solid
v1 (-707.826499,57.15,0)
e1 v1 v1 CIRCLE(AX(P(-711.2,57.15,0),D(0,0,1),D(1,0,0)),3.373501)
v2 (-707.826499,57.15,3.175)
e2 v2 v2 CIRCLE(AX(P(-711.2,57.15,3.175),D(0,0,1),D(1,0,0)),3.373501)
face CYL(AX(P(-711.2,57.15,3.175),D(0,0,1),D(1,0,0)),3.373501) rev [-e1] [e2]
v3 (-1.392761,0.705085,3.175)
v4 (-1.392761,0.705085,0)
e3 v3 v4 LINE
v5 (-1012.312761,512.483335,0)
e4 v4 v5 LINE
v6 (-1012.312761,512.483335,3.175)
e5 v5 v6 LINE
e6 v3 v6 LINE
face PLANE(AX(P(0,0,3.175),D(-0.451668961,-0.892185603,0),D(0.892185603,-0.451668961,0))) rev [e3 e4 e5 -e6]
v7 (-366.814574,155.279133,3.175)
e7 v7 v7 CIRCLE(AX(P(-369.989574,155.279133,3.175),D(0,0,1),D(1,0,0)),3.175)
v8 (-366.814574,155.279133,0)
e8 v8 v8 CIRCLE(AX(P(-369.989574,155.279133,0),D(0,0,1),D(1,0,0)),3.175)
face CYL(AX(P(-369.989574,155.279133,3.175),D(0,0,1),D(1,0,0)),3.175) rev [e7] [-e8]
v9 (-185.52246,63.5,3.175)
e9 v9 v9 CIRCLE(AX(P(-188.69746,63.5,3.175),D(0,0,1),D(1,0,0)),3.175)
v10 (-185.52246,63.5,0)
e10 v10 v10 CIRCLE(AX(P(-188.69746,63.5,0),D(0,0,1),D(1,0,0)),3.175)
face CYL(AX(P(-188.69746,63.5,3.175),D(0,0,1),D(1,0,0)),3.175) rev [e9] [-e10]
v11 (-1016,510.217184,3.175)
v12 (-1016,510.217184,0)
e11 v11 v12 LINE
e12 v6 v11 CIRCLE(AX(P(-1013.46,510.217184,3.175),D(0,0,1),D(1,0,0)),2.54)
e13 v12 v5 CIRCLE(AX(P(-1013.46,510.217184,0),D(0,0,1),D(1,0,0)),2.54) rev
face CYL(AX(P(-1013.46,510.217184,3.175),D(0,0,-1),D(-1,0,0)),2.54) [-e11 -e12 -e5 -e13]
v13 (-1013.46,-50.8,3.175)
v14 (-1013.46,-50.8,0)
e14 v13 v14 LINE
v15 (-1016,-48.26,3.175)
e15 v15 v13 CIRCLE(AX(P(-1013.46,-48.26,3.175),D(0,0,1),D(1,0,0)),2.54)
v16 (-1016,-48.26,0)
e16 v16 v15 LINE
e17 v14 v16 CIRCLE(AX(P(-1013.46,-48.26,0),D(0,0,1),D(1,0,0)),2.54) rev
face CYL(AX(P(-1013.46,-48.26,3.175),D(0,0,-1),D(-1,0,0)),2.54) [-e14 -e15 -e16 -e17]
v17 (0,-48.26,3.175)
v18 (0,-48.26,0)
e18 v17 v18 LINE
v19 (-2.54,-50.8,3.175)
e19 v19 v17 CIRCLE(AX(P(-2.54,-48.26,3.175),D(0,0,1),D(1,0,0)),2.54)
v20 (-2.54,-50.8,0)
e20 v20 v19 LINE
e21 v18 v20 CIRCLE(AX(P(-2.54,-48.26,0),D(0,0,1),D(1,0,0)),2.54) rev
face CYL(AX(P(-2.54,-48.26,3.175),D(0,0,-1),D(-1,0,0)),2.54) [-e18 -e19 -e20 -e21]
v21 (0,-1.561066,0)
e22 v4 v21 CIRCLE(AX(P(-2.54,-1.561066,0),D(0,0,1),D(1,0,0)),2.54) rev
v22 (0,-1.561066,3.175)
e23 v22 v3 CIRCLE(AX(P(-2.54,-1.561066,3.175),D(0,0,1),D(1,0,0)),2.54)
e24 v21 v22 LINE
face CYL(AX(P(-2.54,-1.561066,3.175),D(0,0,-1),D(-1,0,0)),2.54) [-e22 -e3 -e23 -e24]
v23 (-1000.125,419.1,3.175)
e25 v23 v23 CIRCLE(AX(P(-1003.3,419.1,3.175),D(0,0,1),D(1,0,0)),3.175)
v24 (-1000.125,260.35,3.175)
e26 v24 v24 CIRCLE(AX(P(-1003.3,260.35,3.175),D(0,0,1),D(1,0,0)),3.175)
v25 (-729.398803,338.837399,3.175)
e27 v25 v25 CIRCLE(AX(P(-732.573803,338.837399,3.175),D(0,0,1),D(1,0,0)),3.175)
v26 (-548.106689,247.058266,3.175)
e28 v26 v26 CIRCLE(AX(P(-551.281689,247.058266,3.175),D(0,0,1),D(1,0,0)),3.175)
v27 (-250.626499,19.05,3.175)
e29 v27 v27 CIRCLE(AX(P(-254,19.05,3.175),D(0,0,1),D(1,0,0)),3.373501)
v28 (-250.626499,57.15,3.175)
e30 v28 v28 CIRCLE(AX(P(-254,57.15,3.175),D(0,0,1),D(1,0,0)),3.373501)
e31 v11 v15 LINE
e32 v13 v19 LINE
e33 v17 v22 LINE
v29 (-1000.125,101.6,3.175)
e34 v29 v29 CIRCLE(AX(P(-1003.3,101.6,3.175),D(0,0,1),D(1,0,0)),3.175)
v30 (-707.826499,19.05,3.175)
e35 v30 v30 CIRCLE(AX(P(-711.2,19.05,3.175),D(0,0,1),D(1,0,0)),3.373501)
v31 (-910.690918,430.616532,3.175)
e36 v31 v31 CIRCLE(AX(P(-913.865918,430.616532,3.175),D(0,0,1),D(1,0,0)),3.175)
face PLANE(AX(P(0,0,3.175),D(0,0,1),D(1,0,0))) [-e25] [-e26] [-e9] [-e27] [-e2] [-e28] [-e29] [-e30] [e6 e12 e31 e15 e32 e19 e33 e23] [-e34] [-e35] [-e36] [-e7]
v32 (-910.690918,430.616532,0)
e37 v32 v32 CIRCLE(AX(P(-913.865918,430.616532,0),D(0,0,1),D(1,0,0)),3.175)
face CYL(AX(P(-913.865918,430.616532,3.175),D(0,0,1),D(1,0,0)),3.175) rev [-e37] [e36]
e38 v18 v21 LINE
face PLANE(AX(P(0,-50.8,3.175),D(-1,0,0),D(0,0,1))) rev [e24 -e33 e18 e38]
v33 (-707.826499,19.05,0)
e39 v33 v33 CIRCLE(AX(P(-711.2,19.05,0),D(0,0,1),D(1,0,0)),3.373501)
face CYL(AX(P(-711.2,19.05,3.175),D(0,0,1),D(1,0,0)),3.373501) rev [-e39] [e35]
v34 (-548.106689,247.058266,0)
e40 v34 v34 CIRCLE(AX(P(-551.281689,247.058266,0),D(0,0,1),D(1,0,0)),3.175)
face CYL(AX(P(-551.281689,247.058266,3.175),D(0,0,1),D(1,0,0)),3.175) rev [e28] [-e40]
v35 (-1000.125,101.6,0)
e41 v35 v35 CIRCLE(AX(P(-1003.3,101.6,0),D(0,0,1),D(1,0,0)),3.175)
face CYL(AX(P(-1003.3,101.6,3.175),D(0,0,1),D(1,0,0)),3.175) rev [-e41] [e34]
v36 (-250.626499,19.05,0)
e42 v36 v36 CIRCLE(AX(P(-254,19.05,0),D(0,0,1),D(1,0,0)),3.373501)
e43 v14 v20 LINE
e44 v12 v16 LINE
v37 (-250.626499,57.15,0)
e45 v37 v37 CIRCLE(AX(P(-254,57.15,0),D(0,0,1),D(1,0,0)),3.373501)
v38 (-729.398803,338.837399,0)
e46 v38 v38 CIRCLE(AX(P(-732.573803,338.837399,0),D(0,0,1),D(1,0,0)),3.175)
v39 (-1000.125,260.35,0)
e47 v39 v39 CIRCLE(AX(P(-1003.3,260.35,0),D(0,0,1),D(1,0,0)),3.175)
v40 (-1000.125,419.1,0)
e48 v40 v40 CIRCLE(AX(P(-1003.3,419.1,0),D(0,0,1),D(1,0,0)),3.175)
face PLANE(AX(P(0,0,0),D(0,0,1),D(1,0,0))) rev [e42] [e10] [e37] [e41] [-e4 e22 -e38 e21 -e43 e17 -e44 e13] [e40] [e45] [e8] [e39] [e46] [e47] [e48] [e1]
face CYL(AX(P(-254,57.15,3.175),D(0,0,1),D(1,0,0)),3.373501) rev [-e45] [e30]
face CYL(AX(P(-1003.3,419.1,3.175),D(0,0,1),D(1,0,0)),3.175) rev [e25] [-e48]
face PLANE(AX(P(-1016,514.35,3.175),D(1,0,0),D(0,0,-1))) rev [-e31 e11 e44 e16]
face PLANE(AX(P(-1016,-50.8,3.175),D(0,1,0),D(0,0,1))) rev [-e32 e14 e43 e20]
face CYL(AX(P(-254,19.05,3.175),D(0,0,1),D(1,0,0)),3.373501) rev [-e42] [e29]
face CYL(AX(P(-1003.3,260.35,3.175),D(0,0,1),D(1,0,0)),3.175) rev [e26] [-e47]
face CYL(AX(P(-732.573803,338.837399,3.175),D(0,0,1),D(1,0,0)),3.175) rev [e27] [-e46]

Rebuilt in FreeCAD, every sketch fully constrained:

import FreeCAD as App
import Part
import Sketcher

V = App.Vector
Q = App.Units.Quantity


def edges_at(feature, points):
    """Names of the edges that pass closest to the given points."""
    edges = feature.Shape.Edges
    near = lambda p: min(range(len(edges)), key=lambda i: edges[i].distToShape(Part.Vertex(*p))[0])
    return sorted({f"Edge{near(p) + 1}" for p in points})

doc = App.newDocument("Part")
body = doc.addObject("PartDesign::Body", "Body")

# Sketch on XY plane
sketch1 = doc.addObject("Sketcher::SketchObject", "Sketch")
body.addObject(sketch1)
sketch1.AttachmentSupport = (doc.XY_Plane, [""])
sketch1.MapMode = "FlatFace"
sketch1.addGeometry([
    Part.LineSegment(V(-1016, 514.35, 0), V(-1016, -50.8, 0)),
    Part.LineSegment(V(-1016, -50.8, 0), V(0, -50.8, 0)),
    Part.LineSegment(V(0, -50.8, 0), V(0, 0, 0)),
    Part.LineSegment(V(0, 0, 0), V(-1016, 514.35, 0)),
], False)
sketch1.addConstraint([
    Sketcher.Constraint("Coincident", 0, 2, 1, 1),
    Sketcher.Constraint("Coincident", 1, 2, 2, 1),
    Sketcher.Constraint("Coincident", 2, 2, 3, 1),
    Sketcher.Constraint("Coincident", 3, 2, 0, 1),
    Sketcher.Constraint("Vertical", 0),
    Sketcher.Constraint("Horizontal", 1),
    Sketcher.Constraint("Vertical", 2),
    Sketcher.Constraint("Coincident", 2, 2, -1, 1),
    Sketcher.Constraint("DistanceX", 1, 1, 1, 2, Q("40 in")),
    Sketcher.Constraint("DistanceY", 2, 1, 2, 2, Q("2 in")),
    Sketcher.Constraint("DistanceY", 0, 2, 0, 1, Q("22.25 in")),
])
pad1 = doc.addObject("PartDesign::Pad", "Pad")
body.addObject(pad1)
pad1.Profile = sketch1
pad1.Length = Q("0.125 in")

# Sketch on XY plane
sketch2 = doc.addObject("Sketcher::SketchObject", "Sketch001")
body.addObject(sketch2)
sketch2.AttachmentSupport = (doc.XY_Plane, [""])
sketch2.MapMode = "FlatFace"
sketch2.AttachmentOffset = App.Placement(V(0, 0, 0.125 * 25.4), App.Rotation())
sketch2.addGeometry([
    Part.Circle(V(-1003.3, 419.1, 0), V(0, 0, 1), 3.175),
    Part.Circle(V(-1003.3, 260.35, 0), V(0, 0, 1), 3.175),
    Part.Circle(V(-1003.3, 101.6, 0), V(0, 0, 1), 3.175),
], False)
sketch2.addConstraint([
    Sketcher.Constraint("Equal", 0, 1),
    Sketcher.Constraint("Equal", 1, 2),
    Sketcher.Constraint("Vertical", 0, 3, 1, 3),
    Sketcher.Constraint("Vertical", 1, 3, 2, 3),
    Sketcher.Constraint("Diameter", 0, Q("0.25 in")),
    Sketcher.Constraint("DistanceY", -1, 1, 2, 3, Q("4 in")),
    Sketcher.Constraint("DistanceX", 0, 3, -1, 1, Q("39.5 in")),
    Sketcher.Constraint("DistanceY", -1, 1, 0, 3, Q("16.5 in")),
    Sketcher.Constraint("DistanceY", -1, 1, 1, 3, Q("10.25 in")),
])
doc.recompute()
hole = doc.addObject("PartDesign::Hole", "Hole")
body.addObject(hole)
hole.Profile = sketch2
hole.ThreadType = "None"
hole.Diameter = Q("0.25 in")
hole.DepthType = "ThroughAll"

# Sketch on XY plane
sketch3 = doc.addObject("Sketcher::SketchObject", "Sketch002")
body.addObject(sketch3)
sketch3.AttachmentSupport = (doc.XY_Plane, [""])
sketch3.MapMode = "FlatFace"
sketch3.AttachmentOffset = App.Placement(V(0, 0, 0.125 * 25.4), App.Rotation())
sketch3.addGeometry([
    Part.Circle(V(-254, 19.05, 0), V(0, 0, 1), 3.373501),
    Part.Circle(V(-711.2, 57.15, 0), V(0, 0, 1), 3.373501),
    Part.Circle(V(-711.2, 19.05, 0), V(0, 0, 1), 3.373501),
    Part.Circle(V(-254, 57.15, 0), V(0, 0, 1), 3.373501),
], False)
sketch3.addConstraint([
    Sketcher.Constraint("Equal", 0, 1),
    Sketcher.Constraint("Equal", 1, 2),
    Sketcher.Constraint("Equal", 2, 3),
    Sketcher.Constraint("Horizontal", 0, 3, 2, 3),
    Sketcher.Constraint("Horizontal", 1, 3, 3, 3),
    Sketcher.Constraint("Vertical", 1, 3, 2, 3),
    Sketcher.Constraint("Vertical", 0, 3, 3, 3),
    Sketcher.Constraint("DistanceX", 0, 3, -1, 1, Q("10 in")),
    Sketcher.Constraint("DistanceX", 1, 3, -1, 1, Q("28 in")),
    Sketcher.Constraint("DistanceY", 0, 3, 1, 3, Q("1.5 in")),
    Sketcher.Constraint("DistanceY", -1, 1, 0, 3, Q("0.75 in")),
    Sketcher.Constraint("Diameter", 0, Q("6.747002 mm")),
])
doc.recompute()
hole2 = doc.addObject("PartDesign::Hole", "Hole001")
body.addObject(hole2)
hole2.Profile = sketch3
hole2.ThreadType = "None"
hole2.Diameter = 6.747002
hole2.DepthType = "ThroughAll"
doc.recompute()

fillet = doc.addObject("PartDesign::Fillet", "Fillet")
body.addObject(fillet)
fillet.Base = (hole2, edges_at(hole2, [
    (0, 0, 1.587),
    (0, -50.8, 1.587),
    (-1016, -50.8, 1.587),
    (-1016, 514.35, 1.587),
]))
fillet.Radius = Q("0.1 in")

# Sketch on XY plane
sketch4 = doc.addObject("Sketcher::SketchObject", "Sketch003")
body.addObject(sketch4)
sketch4.AttachmentSupport = (doc.XY_Plane, [""])
sketch4.MapMode = "FlatFace"
sketch4.AttachmentOffset = App.Placement(V(0, 0, 0.125 * 25.4), App.Rotation())
sketch4.addGeometry([
    Part.Circle(V(-913.865918, 430.616532, 0), V(0, 0, 1), 3.175),  # 0
    Part.Circle(V(-732.573803, 338.837399, 0), V(0, 0, 1), 3.175),  # 1
    Part.Circle(V(-188.69746, 63.5, 0), V(0, 0, 1), 3.175),  # 2
    Part.Circle(V(-369.989574, 155.279133, 0), V(0, 0, 1), 3.175),  # 3
    Part.Circle(V(-551.281689, 247.058266, 0), V(0, 0, 1), 3.175),  # 4
], False)
sketch4.addConstraint([
    Sketcher.Constraint("Equal", 0, 1),
    Sketcher.Constraint("Equal", 1, 2),
    Sketcher.Constraint("Equal", 2, 3),
    Sketcher.Constraint("Equal", 3, 4),
    Sketcher.Constraint("Diameter", 0, Q("0.25 in")),
    Sketcher.Constraint("DistanceY", -1, 1, 2, 3, Q("2.5 in")),
    Sketcher.Constraint("DistanceY", -1, 1, 1, 3, Q("338.837399 mm")),
    Sketcher.Constraint("DistanceY", 3, 3, 0, 3, Q("275.337399 mm")),
    Sketcher.Constraint("DistanceY", -1, 1, 0, 3, Q("430.616532 mm")),
    Sketcher.Constraint("DistanceX", 2, 3, -1, 1, Q("188.69746 mm")),
    Sketcher.Constraint("DistanceX", 4, 3, -1, 1, Q("551.281689 mm")),
    Sketcher.Constraint("DistanceX", 1, 3, 3, 3, Q("362.584229 mm")),
    Sketcher.Constraint("DistanceX", 0, 3, 4, 3, Q("362.584229 mm")),
    Sketcher.Constraint("DistanceX", 1, 3, -1, 1, Q("732.573803 mm")),
    Sketcher.Constraint("DistanceY", -1, 1, 4, 3, Q("247.058266 mm")),
])
doc.recompute()
hole3 = doc.addObject("PartDesign::Hole", "Hole002")
body.addObject(hole3)
hole3.Profile = sketch4
hole3.ThreadType = "None"
hole3.Diameter = Q("0.25 in")
hole3.DepthType = "ThroughAll"

doc.recompute()
